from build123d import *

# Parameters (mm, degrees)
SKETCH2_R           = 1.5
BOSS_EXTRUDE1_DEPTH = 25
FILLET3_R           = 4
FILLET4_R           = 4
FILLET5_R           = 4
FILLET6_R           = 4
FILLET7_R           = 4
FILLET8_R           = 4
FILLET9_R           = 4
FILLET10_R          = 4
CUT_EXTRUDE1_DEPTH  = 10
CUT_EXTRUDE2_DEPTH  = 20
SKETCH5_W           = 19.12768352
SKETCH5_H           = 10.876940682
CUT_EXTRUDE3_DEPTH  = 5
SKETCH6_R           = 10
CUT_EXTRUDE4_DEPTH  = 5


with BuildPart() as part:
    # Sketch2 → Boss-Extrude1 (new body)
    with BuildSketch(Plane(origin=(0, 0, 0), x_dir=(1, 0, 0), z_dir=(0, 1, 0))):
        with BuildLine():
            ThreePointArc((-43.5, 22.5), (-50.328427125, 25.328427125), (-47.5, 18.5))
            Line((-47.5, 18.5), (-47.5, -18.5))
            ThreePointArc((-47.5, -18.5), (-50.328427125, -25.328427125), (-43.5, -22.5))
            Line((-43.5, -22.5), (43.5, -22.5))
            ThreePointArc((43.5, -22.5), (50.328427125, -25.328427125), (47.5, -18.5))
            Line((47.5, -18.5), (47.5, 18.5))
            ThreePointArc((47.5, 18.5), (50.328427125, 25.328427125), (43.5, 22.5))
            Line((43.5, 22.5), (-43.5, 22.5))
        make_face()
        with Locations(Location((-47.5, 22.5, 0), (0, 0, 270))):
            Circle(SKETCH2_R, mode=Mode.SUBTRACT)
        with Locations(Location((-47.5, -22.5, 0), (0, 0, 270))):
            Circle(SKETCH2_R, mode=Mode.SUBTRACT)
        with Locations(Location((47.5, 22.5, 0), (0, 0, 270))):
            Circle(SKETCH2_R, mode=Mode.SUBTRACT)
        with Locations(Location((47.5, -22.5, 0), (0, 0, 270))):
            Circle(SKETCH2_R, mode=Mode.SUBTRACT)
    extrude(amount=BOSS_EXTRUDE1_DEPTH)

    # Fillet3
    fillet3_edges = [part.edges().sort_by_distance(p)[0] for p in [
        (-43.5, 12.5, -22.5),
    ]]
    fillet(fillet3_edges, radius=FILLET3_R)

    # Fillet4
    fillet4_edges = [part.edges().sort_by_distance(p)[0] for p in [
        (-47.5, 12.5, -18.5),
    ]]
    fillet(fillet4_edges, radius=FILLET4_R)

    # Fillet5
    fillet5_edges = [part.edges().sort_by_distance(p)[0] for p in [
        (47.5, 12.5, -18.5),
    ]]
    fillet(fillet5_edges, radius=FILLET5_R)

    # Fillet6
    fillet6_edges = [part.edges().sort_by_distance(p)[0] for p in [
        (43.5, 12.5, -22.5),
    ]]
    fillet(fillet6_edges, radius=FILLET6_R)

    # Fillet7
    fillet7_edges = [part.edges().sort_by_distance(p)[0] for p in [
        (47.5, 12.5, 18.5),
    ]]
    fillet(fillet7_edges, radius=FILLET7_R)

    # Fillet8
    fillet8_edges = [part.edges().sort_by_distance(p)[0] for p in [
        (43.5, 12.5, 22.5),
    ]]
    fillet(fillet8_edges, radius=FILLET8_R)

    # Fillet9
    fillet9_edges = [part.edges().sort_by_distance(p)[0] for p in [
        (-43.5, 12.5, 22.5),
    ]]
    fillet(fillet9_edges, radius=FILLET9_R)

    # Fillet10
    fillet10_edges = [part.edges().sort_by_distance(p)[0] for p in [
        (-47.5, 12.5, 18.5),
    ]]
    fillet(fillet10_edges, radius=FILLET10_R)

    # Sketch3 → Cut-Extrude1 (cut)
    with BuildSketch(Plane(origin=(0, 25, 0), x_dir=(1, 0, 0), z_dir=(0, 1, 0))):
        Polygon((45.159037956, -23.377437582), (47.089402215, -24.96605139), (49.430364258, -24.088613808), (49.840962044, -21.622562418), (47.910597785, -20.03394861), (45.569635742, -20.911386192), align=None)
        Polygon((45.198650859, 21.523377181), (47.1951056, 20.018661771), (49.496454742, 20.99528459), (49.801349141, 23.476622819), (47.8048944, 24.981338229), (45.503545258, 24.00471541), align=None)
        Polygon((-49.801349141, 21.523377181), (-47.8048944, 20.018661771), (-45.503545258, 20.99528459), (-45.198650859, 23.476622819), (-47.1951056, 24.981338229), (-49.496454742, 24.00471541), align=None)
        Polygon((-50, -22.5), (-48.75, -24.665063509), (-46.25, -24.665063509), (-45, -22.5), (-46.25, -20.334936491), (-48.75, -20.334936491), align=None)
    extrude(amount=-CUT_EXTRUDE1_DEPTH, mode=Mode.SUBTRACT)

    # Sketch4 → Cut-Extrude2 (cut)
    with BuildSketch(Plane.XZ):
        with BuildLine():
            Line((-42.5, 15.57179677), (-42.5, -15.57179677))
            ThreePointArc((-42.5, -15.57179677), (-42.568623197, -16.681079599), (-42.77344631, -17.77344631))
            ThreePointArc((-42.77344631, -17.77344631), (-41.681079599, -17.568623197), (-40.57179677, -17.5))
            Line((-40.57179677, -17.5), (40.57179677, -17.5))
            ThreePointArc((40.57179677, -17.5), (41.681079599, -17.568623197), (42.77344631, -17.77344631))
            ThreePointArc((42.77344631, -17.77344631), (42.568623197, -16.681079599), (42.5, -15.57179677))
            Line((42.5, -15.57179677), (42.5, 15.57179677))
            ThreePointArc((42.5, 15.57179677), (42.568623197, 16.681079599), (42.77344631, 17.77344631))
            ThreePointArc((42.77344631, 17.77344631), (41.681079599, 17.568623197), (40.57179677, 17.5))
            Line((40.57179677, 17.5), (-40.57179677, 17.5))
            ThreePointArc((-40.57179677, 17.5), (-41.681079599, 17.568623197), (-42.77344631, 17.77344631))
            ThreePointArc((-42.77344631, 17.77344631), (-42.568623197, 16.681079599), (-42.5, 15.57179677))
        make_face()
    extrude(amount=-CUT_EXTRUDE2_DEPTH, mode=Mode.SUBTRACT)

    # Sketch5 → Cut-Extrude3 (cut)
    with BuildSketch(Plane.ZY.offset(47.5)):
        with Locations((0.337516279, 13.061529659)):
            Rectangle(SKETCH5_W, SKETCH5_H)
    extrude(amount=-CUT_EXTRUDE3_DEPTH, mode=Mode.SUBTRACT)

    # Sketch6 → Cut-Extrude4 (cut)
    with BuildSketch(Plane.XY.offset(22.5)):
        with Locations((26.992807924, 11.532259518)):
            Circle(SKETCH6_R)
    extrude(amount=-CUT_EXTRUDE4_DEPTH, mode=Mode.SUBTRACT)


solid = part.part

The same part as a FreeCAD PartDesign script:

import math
import FreeCAD as App
import Part
import Sketcher
from FreeCAD import Vector
Q = App.Units.Quantity


def edges_at(feature, points):
    """Names of the edges that pass closest to the given points."""
    edges = feature.Shape.Edges
    near = lambda p: min(range(len(edges)), key=lambda i: edges[i].distToShape(Part.Vertex(*p))[0])
    return sorted({f"Edge{near(p) + 1}" for p in points})

doc = App.newDocument("Part")
body = doc.addObject("PartDesign::Body", "Body")

# Sketch on XZ plane
sketch1 = doc.addObject("Sketcher::SketchObject", "Sketch")
body.addObject(sketch1)
sketch1.AttachmentSupport = (doc.XZ_Plane, [""])
sketch1.MapMode = "FlatFace"
sketch1.addGeometry([
    Part.ArcOfCircle(Part.Circle(Vector(-47.5, -22.5, 0), Vector(0, 0, 1), 4), math.radians(90), math.radians(360)),  # 0
    Part.LineSegment(Vector(-47.5, -18.5, 0), Vector(-47.5, 18.5, 0)),  # 1
    Part.ArcOfCircle(Part.Circle(Vector(-47.5, 22.5, 0), Vector(0, 0, 1), 4), math.radians(0), math.radians(270)),  # 2
    Part.LineSegment(Vector(-43.5, 22.5, 0), Vector(43.5, 22.5, 0)),  # 3
    Part.ArcOfCircle(Part.Circle(Vector(47.5, 22.5, 0), Vector(0, 0, 1), 4), math.radians(-90), math.radians(180)),  # 4
    Part.LineSegment(Vector(47.5, 18.5, 0), Vector(47.5, -18.5, 0)),  # 5
    Part.ArcOfCircle(Part.Circle(Vector(47.5, -22.5, 0), Vector(0, 0, 1), 4), math.radians(180), math.radians(450)),  # 6
    Part.LineSegment(Vector(43.5, -22.5, 0), Vector(-43.5, -22.5, 0)),  # 7
    Part.Circle(Vector(-47.5, 22.5, 0), Vector(0, 0, 1), 1.5),  # 8
    Part.Circle(Vector(47.5, 22.5, 0), Vector(0, 0, 1), 1.5),  # 9
    Part.Circle(Vector(-47.5, -22.5, 0), Vector(0, 0, 1), 1.5),  # 10
    Part.Circle(Vector(47.5, -22.5, 0), Vector(0, 0, 1), 1.5),  # 11
], False)
sketch1.addConstraint([
    Sketcher.Constraint("Coincident", 0, 1, 1, 1),
    Sketcher.Constraint("Coincident", 1, 2, 2, 2),
    Sketcher.Constraint("Coincident", 2, 1, 3, 1),
    Sketcher.Constraint("Coincident", 3, 2, 4, 2),
    Sketcher.Constraint("Coincident", 4, 1, 5, 1),
    Sketcher.Constraint("Coincident", 5, 2, 6, 2),
    Sketcher.Constraint("Coincident", 6, 1, 7, 1),
    Sketcher.Constraint("Coincident", 7, 2, 0, 2),
    Sketcher.Constraint("Vertical", 1),
    Sketcher.Constraint("Horizontal", 3),
    Sketcher.Constraint("Vertical", 5),
    Sketcher.Constraint("Horizontal", 7),
    Sketcher.Constraint("Coincident", 8, 3, 2, 3),
    Sketcher.Constraint("Coincident", 9, 3, 4, 3),
    Sketcher.Constraint("Coincident", 10, 3, 0, 3),
    Sketcher.Constraint("Coincident", 11, 3, 6, 3),
    Sketcher.Constraint("Equal", 0, 2),
    Sketcher.Constraint("Equal", 2, 4),
    Sketcher.Constraint("Equal", 4, 6),
    Sketcher.Constraint("Equal", 8, 9),
    Sketcher.Constraint("Equal", 9, 10),
    Sketcher.Constraint("Equal", 10, 11),
    Sketcher.Constraint("Symmetric", 0, 3, 4, 3, -1, 1),
    Sketcher.Constraint("Symmetric", 2, 3, 6, 3, -1, 1),
    Sketcher.Constraint("Symmetric", 2, 3, 4, 3, -2),
    Sketcher.Constraint("Horizontal", 9, 3, 2, 1),
    Sketcher.Constraint("Horizontal", 11, 3, 6, 1),
    Sketcher.Constraint("Vertical", 10, 3, 0, 1),
    Sketcher.Constraint("Vertical", 11, 3, 4, 1),
    Sketcher.Constraint("Diameter", 8, 3.0),
    Sketcher.Constraint("Radius", 0, 4.0),
    Sketcher.Constraint("DistanceX", 3, 1, 3, 2, 87.0),
    Sketcher.Constraint("DistanceY", 1, 1, 1, 2, 37.0),
])
pad1 = doc.addObject("PartDesign::Pad", "Pad")
body.addObject(pad1)
pad1.Profile = sketch1
pad1.Length = 25
pad1.Reversed = True
doc.recompute()

fillet = doc.addObject("PartDesign::Fillet", "Fillet")
body.addObject(fillet)
fillet.Base = (pad1, edges_at(pad1, [(-43.5, 12.5, -22.5)]))
fillet.Radius = 4
doc.recompute()

fillet2 = doc.addObject("PartDesign::Fillet", "Fillet001")
body.addObject(fillet2)
fillet2.Base = (fillet, edges_at(fillet, [(-47.5, 12.5, -18.5)]))
fillet2.Radius = 4
doc.recompute()

fillet3 = doc.addObject("PartDesign::Fillet", "Fillet002")
body.addObject(fillet3)
fillet3.Base = (fillet2, edges_at(fillet2, [(47.5, 12.5, -18.5)]))
fillet3.Radius = 4
doc.recompute()

fillet4 = doc.addObject("PartDesign::Fillet", "Fillet003")
body.addObject(fillet4)
fillet4.Base = (fillet3, edges_at(fillet3, [(43.5, 12.5, -22.5)]))
fillet4.Radius = 4
doc.recompute()

fillet5 = doc.addObject("PartDesign::Fillet", "Fillet004")
body.addObject(fillet5)
fillet5.Base = (fillet4, edges_at(fillet4, [(47.5, 12.5, 18.5)]))
fillet5.Radius = 4
doc.recompute()

fillet6 = doc.addObject("PartDesign::Fillet", "Fillet005")
body.addObject(fillet6)
fillet6.Base = (fillet5, edges_at(fillet5, [(43.5, 12.5, 22.5)]))
fillet6.Radius = 4
doc.recompute()

fillet7 = doc.addObject("PartDesign::Fillet", "Fillet006")
body.addObject(fillet7)
fillet7.Base = (fillet6, edges_at(fillet6, [(-43.5, 12.5, 22.5)]))
fillet7.Radius = 4
doc.recompute()

fillet8 = doc.addObject("PartDesign::Fillet", "Fillet007")
body.addObject(fillet8)
fillet8.Base = (fillet7, edges_at(fillet7, [(-47.5, 12.5, 18.5)]))
fillet8.Radius = 4

# Sketch on XZ plane
sketch2 = doc.addObject("Sketcher::SketchObject", "Sketch001")
body.addObject(sketch2)
sketch2.AttachmentSupport = (doc.XZ_Plane, [""])
sketch2.MapMode = "FlatFace"
sketch2.AttachmentOffset = App.Placement(Vector(0, 0, -25), App.Rotation())
sketch2.addGeometry([
    Part.LineSegment(Vector(45.2, 23.4, 0), Vector(47.1, 25, 0)),  # 0
    Part.LineSegment(Vector(47.1, 25, 0), Vector(49.4, 24.1, 0)),  # 1
    Part.LineSegment(Vector(49.4, 24.1, 0), Vector(49.8, 21.6, 0)),  # 2
    Part.LineSegment(Vector(49.8, 21.6, 0), Vector(47.9, 20, 0)),  # 3
    Part.LineSegment(Vector(47.9, 20, 0), Vector(45.6, 20.9, 0)),  # 4
    Part.LineSegment(Vector(45.6, 20.9, 0), Vector(45.2, 23.4, 0)),  # 5
    Part.LineSegment(Vector(45.2, -21.5, 0), Vector(47.2, -20, 0)),  # 6
    Part.LineSegment(Vector(47.2, -20, 0), Vector(49.5, -21, 0)),  # 7
    Part.LineSegment(Vector(49.5, -21, 0), Vector(49.8, -23.5, 0)),  # 8
    Part.LineSegment(Vector(49.8, -23.5, 0), Vector(47.8, -25, 0)),  # 9
    Part.LineSegment(Vector(47.8, -25, 0), Vector(45.5, -24, 0)),  # 10
    Part.LineSegment(Vector(45.5, -24, 0), Vector(45.2, -21.5, 0)),  # 11
    Part.LineSegment(Vector(-49.8, -21.5, 0), Vector(-47.8, -20, 0)),  # 12
    Part.LineSegment(Vector(-47.8, -20, 0), Vector(-45.5, -21, 0)),  # 13
    Part.LineSegment(Vector(-45.5, -21, 0), Vector(-45.2, -23.5, 0)),  # 14
    Part.LineSegment(Vector(-45.2, -23.5, 0), Vector(-47.2, -25, 0)),  # 15
    Part.LineSegment(Vector(-47.2, -25, 0), Vector(-49.5, -24, 0)),  # 16
    Part.LineSegment(Vector(-49.5, -24, 0), Vector(-49.8, -21.5, 0)),  # 17
    Part.LineSegment(Vector(-50, 22.5, 0), Vector(-48.8, 24.7, 0)),  # 18
    Part.LineSegment(Vector(-48.8, 24.7, 0), Vector(-46.2, 24.7, 0)),  # 19
    Part.LineSegment(Vector(-46.2, 24.7, 0), Vector(-45, 22.5, 0)),  # 20
    Part.LineSegment(Vector(-45, 22.5, 0), Vector(-46.2, 20.3, 0)),  # 21
    Part.LineSegment(Vector(-46.2, 20.3, 0), Vector(-48.8, 20.3, 0)),  # 22
    Part.LineSegment(Vector(-48.8, 20.3, 0), Vector(-50, 22.5, 0)),  # 23
], False)
sketch2.addConstraint([
    Sketcher.Constraint("Coincident", 0, 2, 1, 1),
    Sketcher.Constraint("Coincident", 1, 2, 2, 1),
    Sketcher.Constraint("Coincident", 2, 2, 3, 1),
    Sketcher.Constraint("Coincident", 3, 2, 4, 1),
    Sketcher.Constraint("Coincident", 4, 2, 5, 1),
    Sketcher.Constraint("Coincident", 5, 2, 0, 1),
    Sketcher.Constraint("Coincident", 6, 2, 7, 1),
    Sketcher.Constraint("Coincident", 7, 2, 8, 1),
    Sketcher.Constraint("Coincident", 8, 2, 9, 1),
    Sketcher.Constraint("Coincident", 9, 2, 10, 1),
    Sketcher.Constraint("Coincident", 10, 2, 11, 1),
    Sketcher.Constraint("Coincident", 11, 2, 6, 1),
    Sketcher.Constraint("Coincident", 12, 2, 13, 1),
    Sketcher.Constraint("Coincident", 13, 2, 14, 1),
    Sketcher.Constraint("Coincident", 14, 2, 15, 1),
    Sketcher.Constraint("Coincident", 15, 2, 16, 1),
    Sketcher.Constraint("Coincident", 16, 2, 17, 1),
    Sketcher.Constraint("Coincident", 17, 2, 12, 1),
    Sketcher.Constraint("Coincident", 18, 2, 19, 1),
    Sketcher.Constraint("Coincident", 19, 2, 20, 1),
    Sketcher.Constraint("Coincident", 20, 2, 21, 1),
    Sketcher.Constraint("Coincident", 21, 2, 22, 1),
    Sketcher.Constraint("Coincident", 22, 2, 23, 1),
    Sketcher.Constraint("Coincident", 23, 2, 18, 1),
    Sketcher.Constraint("Horizontal", 19),
    Sketcher.Constraint("Horizontal", 22),
    Sketcher.Constraint("Parallel", 0, 3),
    Sketcher.Constraint("Parallel", 1, 4),
    Sketcher.Constraint("Parallel", 2, 5),
    Sketcher.Constraint("Parallel", 6, 9),
    Sketcher.Constraint("Parallel", 7, 10),
    Sketcher.Constraint("Parallel", 8, 11),
    Sketcher.Constraint("Parallel", 9, 12),
    Sketcher.Constraint("Parallel", 10, 13),
    Sketcher.Constraint("Parallel", 11, 14),
    Sketcher.Constraint("Parallel", 12, 15),
    Sketcher.Constraint("Parallel", 13, 16),
    Sketcher.Constraint("Parallel", 14, 17),
    Sketcher.Constraint("Parallel", 18, 21),
    Sketcher.Constraint("Parallel", 20, 23),
    Sketcher.Constraint("Horizontal", 6, 2, 12, 2),
    Sketcher.Constraint("Horizontal", 7, 2, 13, 2),
    Sketcher.Constraint("Horizontal", 8, 2, 14, 2),
    Sketcher.Constraint("Horizontal", 9, 2, 15, 2),
    Sketcher.Constraint("Horizontal", 10, 2, 16, 2),
    Sketcher.Constraint("Horizontal", 20, 2, 23, 2),
    Sketcher.Constraint("Vertical", 19, 2, 21, 2),
    Sketcher.Constraint("Vertical", 18, 2, 22, 2),
    Sketcher.Constraint("Equal", 0, 1),
    Sketcher.Constraint("Equal", 1, 2),
    Sketcher.Constraint("Equal", 2, 3),
    Sketcher.Constraint("Equal", 5, 6),
    Sketcher.Constraint("Equal", 6, 7),
    Sketcher.Constraint("Equal", 7, 8),
    Sketcher.Constraint("Equal", 8, 9),
    Sketcher.Constraint("Equal", 17, 18),
    Sketcher.Constraint("Angle", 18, Q("60 deg")),
    Sketcher.Constraint("DistanceX", 19, 1, 19, 2, 2.5),
    Sketcher.Constraint("DistanceX", 20, 2, -1, 1, 45.0),
    Sketcher.Constraint("DistanceX", 23, 2, -1, 1, 50.0),
    Sketcher.Constraint("DistanceX", 12, 2, 6, 2, 95.0),
    Sketcher.Constraint("DistanceY", -1, 1, 20, 2, 22.5),
    Sketcher.Constraint("DistanceY", 6, 2, 5, 2, 43.396099),
    Sketcher.Constraint("DistanceX", 11, 2, 8, 2, 4.602698),
    Sketcher.Constraint("DistanceY", 12, 2, 21, 2, 40.353598),
    Sketcher.Constraint("DistanceY", -1, 1, 0, 2, 24.966051),
    Sketcher.Constraint("DistanceY", -1, 1, 3, 2, 20.033949),
    Sketcher.Constraint("DistanceX", -1, 1, 8, 2, 49.801349),
    Sketcher.Constraint("DistanceY", 9, 2, -1, 1, 24.981338),
    Sketcher.Constraint("DistanceY", 2, 2, 1, 2, 2.466051),
    Sketcher.Constraint("DistanceX", 4, 2, 6, 2, 1.62547),
    Sketcher.Constraint("DistanceX", 6, 2, 7, 2, 2.301349),
])
pocket1 = doc.addObject("PartDesign::Pocket", "Pocket")
body.addObject(pocket1)
pocket1.Profile = sketch2
pocket1.Length = 10
pocket1.Reversed = True

# Sketch on XZ plane
sketch3 = doc.addObject("Sketcher::SketchObject", "Sketch002")
body.addObject(sketch3)
sketch3.AttachmentSupport = (doc.XZ_Plane, [""])
sketch3.MapMode = "FlatFace"
sketch3.addGeometry([
    Part.LineSegment(Vector(-42.5, 15.6, 0), Vector(-42.5, -15.6, 0)),  # 0
    Part.ArcOfCircle(Part.Circle(Vector(-51.5, -15.6, 0), Vector(0, 0, 1), 9), math.radians(-14.16), math.radians(0)),  # 1
    Part.ArcOfCircle(Part.Circle(Vector(-40.6, -26.5, 0), Vector(0, 0, 1), 9), math.radians(90), math.radians(104.16)),  # 2
    Part.LineSegment(Vector(-40.6, -17.5, 0), Vector(40.6, -17.5, 0)),  # 3
    Part.ArcOfCircle(Part.Circle(Vector(40.6, -26.5, 0), Vector(0, 0, 1), 9), math.radians(75.84), math.radians(90)),  # 4
    Part.ArcOfCircle(Part.Circle(Vector(51.5, -15.6, 0), Vector(0, 0, 1), 9), math.radians(-180), math.radians(-165.84)),  # 5
    Part.LineSegment(Vector(42.5, -15.6, 0), Vector(42.5, 15.6, 0)),  # 6
    Part.ArcOfCircle(Part.Circle(Vector(51.5, 15.6, 0), Vector(0, 0, 1), 9), math.radians(165.84), math.radians(180)),  # 7
    Part.ArcOfCircle(Part.Circle(Vector(40.6, 26.5, 0), Vector(0, 0, 1), 9), math.radians(-90), math.radians(-75.84)),  # 8
    Part.LineSegment(Vector(40.6, 17.5, 0), Vector(-40.6, 17.5, 0)),  # 9
    Part.ArcOfCircle(Part.Circle(Vector(-40.6, 26.5, 0), Vector(0, 0, 1), 9), math.radians(-104.16), math.radians(-90)),  # 10
    Part.ArcOfCircle(Part.Circle(Vector(-51.5, 15.6, 0), Vector(0, 0, 1), 9), math.radians(0), math.radians(14.16)),  # 11
], False)
sketch3.addConstraint([
    Sketcher.Constraint("Tangent", 0, 2, 1, 2),
    Sketcher.Constraint("Coincident", 1, 1, 2, 2),
    Sketcher.Constraint("Tangent", 2, 1, 3, 1),
    Sketcher.Constraint("Tangent", 3, 2, 4, 2),
    Sketcher.Constraint("Coincident", 4, 1, 5, 2),
    Sketcher.Constraint("Tangent", 5, 1, 6, 1),
    Sketcher.Constraint("Tangent", 6, 2, 7, 2),
    Sketcher.Constraint("Coincident", 7, 1, 8, 2),
    Sketcher.Constraint("Tangent", 8, 1, 9, 1),
    Sketcher.Constraint("Tangent", 9, 2, 10, 2),
    Sketcher.Constraint("Coincident", 10, 1, 11, 2),
    Sketcher.Constraint("Tangent", 11, 1, 0, 1),
    Sketcher.Constraint("Vertical", 0),
    Sketcher.Constraint("Horizontal", 3),
    Sketcher.Constraint("Vertical", 6),
    Sketcher.Constraint("Horizontal", 9),
    Sketcher.Constraint("Equal", 1, 2),
    Sketcher.Constraint("Equal", 2, 4),
    Sketcher.Constraint("Equal", 4, 5),
    Sketcher.Constraint("Equal", 5, 7),
    Sketcher.Constraint("Equal", 7, 8),
    Sketcher.Constraint("Equal", 8, 10),
    Sketcher.Constraint("Equal", 10, 11),
    Sketcher.Constraint("Symmetric", 1, 3, 7, 3, -1, 1),
    Sketcher.Constraint("Symmetric", 2, 3, 8, 3, -1, 1),
    Sketcher.Constraint("Symmetric", 4, 1, 10, 1, -1, 1),
    Sketcher.Constraint("Symmetric", 1, 1, 4, 1, -2),
    Sketcher.Constraint("Radius", 1, 9.0),
    Sketcher.Constraint("DistanceX", 1, 3, 5, 3, 103.0),
    Sketcher.Constraint("DistanceY", 4, 3, 8, 3, 53.0),
    Sketcher.Constraint("DistanceX", 3, 1, 3, 2, 81.143594),
    Sketcher.Constraint("DistanceY", 0, 2, 0, 1, 31.143594),
])
pocket2 = doc.addObject("PartDesign::Pocket", "Pocket001")
body.addObject(pocket2)
pocket2.Profile = sketch3
pocket2.Length = 20

# Sketch on YZ plane
sketch4 = doc.addObject("Sketcher::SketchObject", "Sketch003")
body.addObject(sketch4)
sketch4.AttachmentSupport = (doc.YZ_Plane, [""])
sketch4.MapMode = "FlatFace"
sketch4.AttachmentOffset = App.Placement(Vector(0, 0, -47.5), App.Rotation())
sketch4.addGeometry([
    Part.LineSegment(Vector(18, -9, 0), Vector(8, -9, 0)),
    Part.LineSegment(Vector(8, -9, 0), Vector(8, 10, 0)),
    Part.LineSegment(Vector(8, 10, 0), Vector(18, 10, 0)),
    Part.LineSegment(Vector(18, 10, 0), Vector(18, -9, 0)),
], False)
sketch4.addConstraint([
    Sketcher.Constraint("Coincident", 0, 2, 1, 1),
    Sketcher.Constraint("Coincident", 1, 2, 2, 1),
    Sketcher.Constraint("Coincident", 2, 2, 3, 1),
    Sketcher.Constraint("Coincident", 3, 2, 0, 1),
    Sketcher.Constraint("Horizontal", 0),
    Sketcher.Constraint("Vertical", 1),
    Sketcher.Constraint("Horizontal", 2),
    Sketcher.Constraint("Vertical", 3),
    Sketcher.Constraint("DistanceX", -1, 1, 2, 2, 18.5),
    Sketcher.Constraint("DistanceX", 0, 2, 0, 1, 10.876941),
    Sketcher.Constraint("DistanceY", 1, 1, 1, 2, 19.127684),
    Sketcher.Constraint("DistanceY", -1, 1, 1, 2, 9.901358),
])
pocket3 = doc.addObject("PartDesign::Pocket", "Pocket002")
body.addObject(pocket3)
pocket3.Profile = sketch4
pocket3.Length = 5
pocket3.Reversed = True

# Sketch on XY plane
sketch5 = doc.addObject("Sketcher::SketchObject", "Sketch004")
body.addObject(sketch5)
sketch5.AttachmentSupport = (doc.XY_Plane, [""])
sketch5.MapMode = "FlatFace"
sketch5.AttachmentOffset = App.Placement(Vector(0, 0, 22.5), App.Rotation())
sketch5.addGeometry(Part.Circle(Vector(27, 12, 0), Vector(0, 0, 1), 10), False)
sketch5.addConstraint([
    Sketcher.Constraint("Diameter", 0, 20.0),
    Sketcher.Constraint("DistanceY", -1, 1, 0, 3, 11.53226),
    Sketcher.Constraint("DistanceX", -1, 1, 0, 3, 26.992808),
])
pocket4 = doc.addObject("PartDesign::Pocket", "Pocket003")
body.addObject(pocket4)
pocket4.Profile = sketch5
pocket4.Length = 5

doc.recompute()
